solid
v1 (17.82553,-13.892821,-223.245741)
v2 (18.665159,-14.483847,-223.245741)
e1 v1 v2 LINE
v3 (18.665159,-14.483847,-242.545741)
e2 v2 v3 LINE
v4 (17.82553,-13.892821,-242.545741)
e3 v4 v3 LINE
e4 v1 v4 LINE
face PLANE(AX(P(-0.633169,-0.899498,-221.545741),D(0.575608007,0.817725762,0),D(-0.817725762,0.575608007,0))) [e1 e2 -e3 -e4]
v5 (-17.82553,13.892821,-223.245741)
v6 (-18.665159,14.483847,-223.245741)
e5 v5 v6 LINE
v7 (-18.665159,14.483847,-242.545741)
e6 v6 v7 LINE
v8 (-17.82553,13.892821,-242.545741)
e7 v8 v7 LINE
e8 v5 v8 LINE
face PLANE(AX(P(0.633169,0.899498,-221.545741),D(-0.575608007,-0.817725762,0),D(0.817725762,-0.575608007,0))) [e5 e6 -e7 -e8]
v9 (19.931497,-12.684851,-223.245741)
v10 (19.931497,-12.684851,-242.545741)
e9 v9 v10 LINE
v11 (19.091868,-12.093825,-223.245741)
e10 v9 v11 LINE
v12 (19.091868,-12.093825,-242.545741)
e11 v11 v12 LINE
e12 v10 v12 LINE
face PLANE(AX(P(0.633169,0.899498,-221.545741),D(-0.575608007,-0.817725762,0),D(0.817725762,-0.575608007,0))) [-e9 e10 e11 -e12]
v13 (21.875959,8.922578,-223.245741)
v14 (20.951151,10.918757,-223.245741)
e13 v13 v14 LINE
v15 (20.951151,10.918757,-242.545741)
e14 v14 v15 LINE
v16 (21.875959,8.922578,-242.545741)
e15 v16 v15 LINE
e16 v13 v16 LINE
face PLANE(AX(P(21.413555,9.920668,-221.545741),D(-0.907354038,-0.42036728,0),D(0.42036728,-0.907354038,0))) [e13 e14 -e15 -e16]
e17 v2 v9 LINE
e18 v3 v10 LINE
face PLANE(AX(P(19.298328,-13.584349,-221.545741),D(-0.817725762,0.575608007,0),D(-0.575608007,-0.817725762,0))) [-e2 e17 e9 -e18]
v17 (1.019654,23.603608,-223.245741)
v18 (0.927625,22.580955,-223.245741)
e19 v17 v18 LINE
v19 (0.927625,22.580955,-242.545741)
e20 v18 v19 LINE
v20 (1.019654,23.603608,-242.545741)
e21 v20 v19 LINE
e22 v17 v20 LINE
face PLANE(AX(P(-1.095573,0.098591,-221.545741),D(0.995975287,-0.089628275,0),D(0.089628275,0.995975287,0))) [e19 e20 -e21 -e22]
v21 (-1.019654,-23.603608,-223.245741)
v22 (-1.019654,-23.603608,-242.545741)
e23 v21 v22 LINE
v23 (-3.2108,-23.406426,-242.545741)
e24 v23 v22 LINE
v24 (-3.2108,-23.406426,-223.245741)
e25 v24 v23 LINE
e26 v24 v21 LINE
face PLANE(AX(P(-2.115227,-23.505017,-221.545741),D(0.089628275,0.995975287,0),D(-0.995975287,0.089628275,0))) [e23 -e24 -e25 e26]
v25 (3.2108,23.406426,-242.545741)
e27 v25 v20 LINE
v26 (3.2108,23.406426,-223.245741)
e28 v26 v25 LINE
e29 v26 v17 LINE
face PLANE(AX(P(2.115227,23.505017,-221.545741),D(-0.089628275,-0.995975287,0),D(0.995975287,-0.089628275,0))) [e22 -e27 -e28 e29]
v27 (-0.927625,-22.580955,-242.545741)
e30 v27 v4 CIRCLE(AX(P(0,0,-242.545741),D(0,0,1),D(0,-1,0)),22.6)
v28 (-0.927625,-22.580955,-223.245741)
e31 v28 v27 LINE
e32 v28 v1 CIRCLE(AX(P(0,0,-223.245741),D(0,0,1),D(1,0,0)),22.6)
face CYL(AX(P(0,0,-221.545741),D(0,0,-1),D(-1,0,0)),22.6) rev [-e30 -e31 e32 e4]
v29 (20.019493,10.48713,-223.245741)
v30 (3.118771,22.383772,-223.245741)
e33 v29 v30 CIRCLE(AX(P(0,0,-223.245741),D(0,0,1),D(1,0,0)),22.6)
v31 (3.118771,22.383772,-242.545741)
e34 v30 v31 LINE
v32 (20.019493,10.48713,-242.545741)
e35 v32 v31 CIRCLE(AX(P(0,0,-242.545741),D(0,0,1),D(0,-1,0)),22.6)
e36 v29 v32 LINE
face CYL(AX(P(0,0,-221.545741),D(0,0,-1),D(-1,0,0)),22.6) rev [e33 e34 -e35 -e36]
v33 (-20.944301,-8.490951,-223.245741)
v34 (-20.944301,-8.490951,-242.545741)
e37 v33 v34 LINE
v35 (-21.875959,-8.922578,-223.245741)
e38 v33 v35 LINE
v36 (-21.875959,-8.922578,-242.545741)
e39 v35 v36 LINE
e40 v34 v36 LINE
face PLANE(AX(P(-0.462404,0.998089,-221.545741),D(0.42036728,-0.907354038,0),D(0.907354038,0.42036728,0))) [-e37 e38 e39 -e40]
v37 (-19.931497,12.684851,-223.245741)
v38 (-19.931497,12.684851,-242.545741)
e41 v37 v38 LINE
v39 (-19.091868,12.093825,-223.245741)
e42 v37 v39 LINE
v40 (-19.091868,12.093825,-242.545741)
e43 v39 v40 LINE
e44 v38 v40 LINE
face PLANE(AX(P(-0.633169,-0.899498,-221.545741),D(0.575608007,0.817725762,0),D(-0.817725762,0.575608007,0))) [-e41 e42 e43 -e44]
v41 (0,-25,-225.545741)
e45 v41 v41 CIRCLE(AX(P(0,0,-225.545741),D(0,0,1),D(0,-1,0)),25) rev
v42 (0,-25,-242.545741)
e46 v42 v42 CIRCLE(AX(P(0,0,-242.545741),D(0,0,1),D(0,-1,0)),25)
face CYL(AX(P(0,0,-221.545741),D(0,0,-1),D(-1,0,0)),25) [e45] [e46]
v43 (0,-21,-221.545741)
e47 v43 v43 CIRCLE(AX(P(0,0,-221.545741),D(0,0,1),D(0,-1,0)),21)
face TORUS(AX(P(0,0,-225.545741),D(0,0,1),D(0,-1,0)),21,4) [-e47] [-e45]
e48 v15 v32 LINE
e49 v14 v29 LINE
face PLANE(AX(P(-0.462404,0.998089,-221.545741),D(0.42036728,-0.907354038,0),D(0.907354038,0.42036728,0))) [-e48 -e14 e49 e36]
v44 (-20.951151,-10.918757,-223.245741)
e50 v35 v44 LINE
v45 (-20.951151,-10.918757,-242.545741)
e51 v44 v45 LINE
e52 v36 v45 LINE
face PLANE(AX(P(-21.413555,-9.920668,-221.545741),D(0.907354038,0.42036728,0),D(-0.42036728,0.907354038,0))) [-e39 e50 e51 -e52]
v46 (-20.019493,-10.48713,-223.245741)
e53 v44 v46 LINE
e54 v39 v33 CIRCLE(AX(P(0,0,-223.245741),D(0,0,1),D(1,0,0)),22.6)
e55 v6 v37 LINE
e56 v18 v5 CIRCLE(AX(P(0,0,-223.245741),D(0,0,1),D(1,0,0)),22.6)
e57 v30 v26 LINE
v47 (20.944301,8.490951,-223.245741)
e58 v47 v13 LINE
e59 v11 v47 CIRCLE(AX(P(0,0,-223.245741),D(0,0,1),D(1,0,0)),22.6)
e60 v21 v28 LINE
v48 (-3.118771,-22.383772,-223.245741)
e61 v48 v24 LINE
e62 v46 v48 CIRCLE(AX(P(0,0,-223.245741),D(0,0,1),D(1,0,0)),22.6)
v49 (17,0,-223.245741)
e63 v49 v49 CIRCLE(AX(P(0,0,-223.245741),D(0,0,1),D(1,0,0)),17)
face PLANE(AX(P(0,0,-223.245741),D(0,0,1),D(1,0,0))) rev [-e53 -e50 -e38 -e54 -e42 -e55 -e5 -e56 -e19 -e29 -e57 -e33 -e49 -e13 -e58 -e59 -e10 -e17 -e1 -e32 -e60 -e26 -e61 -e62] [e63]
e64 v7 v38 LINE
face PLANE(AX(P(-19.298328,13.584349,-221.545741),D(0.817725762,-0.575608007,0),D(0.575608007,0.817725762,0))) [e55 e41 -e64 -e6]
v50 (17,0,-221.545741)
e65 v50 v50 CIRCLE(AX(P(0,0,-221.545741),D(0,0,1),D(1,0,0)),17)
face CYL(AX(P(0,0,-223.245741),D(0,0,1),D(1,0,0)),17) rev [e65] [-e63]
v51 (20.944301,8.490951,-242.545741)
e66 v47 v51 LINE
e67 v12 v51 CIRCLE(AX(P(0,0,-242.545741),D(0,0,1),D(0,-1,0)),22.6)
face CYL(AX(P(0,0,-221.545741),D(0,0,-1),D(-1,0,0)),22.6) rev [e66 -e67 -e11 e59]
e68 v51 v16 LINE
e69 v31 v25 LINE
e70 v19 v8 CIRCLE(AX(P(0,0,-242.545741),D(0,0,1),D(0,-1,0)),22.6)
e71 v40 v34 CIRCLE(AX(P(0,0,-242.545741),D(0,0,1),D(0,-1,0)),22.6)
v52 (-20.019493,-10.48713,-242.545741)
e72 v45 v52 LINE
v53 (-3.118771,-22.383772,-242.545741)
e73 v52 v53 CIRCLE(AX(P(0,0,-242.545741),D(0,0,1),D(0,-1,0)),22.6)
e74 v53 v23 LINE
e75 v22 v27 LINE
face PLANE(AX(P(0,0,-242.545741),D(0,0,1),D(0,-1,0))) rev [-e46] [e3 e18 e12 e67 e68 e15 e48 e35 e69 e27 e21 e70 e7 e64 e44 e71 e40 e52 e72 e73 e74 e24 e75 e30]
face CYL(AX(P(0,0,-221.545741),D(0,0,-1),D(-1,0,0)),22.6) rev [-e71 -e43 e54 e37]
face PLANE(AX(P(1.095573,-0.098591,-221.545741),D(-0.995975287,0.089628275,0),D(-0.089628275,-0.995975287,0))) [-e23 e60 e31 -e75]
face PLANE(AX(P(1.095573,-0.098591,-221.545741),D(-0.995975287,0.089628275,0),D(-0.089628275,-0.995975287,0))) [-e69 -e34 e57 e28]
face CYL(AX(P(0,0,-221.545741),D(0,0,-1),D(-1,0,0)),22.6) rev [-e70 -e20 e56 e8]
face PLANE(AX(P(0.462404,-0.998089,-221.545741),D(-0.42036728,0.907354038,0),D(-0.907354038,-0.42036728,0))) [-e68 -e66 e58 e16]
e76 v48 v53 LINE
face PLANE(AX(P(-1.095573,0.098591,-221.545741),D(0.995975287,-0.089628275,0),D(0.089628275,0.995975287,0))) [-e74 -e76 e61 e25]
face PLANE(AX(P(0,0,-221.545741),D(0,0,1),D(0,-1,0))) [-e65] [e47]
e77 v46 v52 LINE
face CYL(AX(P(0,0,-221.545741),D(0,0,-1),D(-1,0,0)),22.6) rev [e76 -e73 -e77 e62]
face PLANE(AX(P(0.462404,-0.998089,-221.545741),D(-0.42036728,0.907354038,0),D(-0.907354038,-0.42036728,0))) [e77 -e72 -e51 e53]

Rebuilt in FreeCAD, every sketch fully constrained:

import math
import FreeCAD as App
import Part
import Sketcher


def edges_at(feature, points):
    """Names of the edges that pass closest to the given points."""
    edges = feature.Shape.Edges
    near = lambda p: min(range(len(edges)), key=lambda i: edges[i].distToShape(Part.Vertex(*p))[0])
    return sorted({f"Edge{near(p) + 1}" for p in points})

doc = App.newDocument("Part")
params = doc.addObject("Spreadsheet::Sheet", "Params")
for row, (alias, value) in enumerate([
    ("sketch1_diameter", "50 mm"),
    ("sketch1_radius", "22.6 mm"),
    ("sketch1_length", "2.2 mm"),
    ("pad1_length", "21.000001 mm"),
    ("sketch2_diameter", "50 mm"),
    ("sketch2_diameter2", "34 mm"),
    ("pad2_length", "1.7 mm"),
    ("fillet_radius", "4 mm"),
], start=1):
    params.set(f"A{row}", alias)
    params.set(f"B{row}", "=" + value)
    params.setAlias(f"B{row}", alias)

body = doc.addObject("PartDesign::Body", "Body")

# Sketch on XY plane
sketch1 = doc.addObject("Sketcher::SketchObject", "Sketch")
body.addObject(sketch1)
sketch1.AttachmentSupport = (doc.XY_Plane, [""])
sketch1.MapMode = "FlatFace"
sketch1.AttachmentOffset = App.Placement(App.Vector(0, 0, -242.545742), App.Rotation())
sketch1.addGeometry(Part.Circle(App.Vector(0, 0, 0), App.Vector(0, 0, 1), 25), False)
sketch1.addGeometry(Part.LineSegment(App.Vector(-21, -10.9, 0), App.Vector(-21.9, -8.9, 0)), False)
sketch1.addGeometry(Part.LineSegment(App.Vector(-21.9, -8.9, 0), App.Vector(-20.9, -8.5, 0)), False)
sketch1.addGeometry(Part.ArcOfCircle(Part.Circle(App.Vector(0, 0, 0), App.Vector(0, 0, 1), 22.6), math.radians(148), math.radians(202)), False)
sketch1.addGeometry(Part.LineSegment(App.Vector(-19.1, 12.1, 0), App.Vector(-19.9, 12.7, 0)), False)
sketch1.addGeometry(Part.LineSegment(App.Vector(-19.9, 12.7, 0), App.Vector(-18.7, 14.5, 0)), False)
sketch1.addGeometry(Part.LineSegment(App.Vector(-18.7, 14.5, 0), App.Vector(-17.8, 13.9, 0)), False)
sketch1.addGeometry(Part.ArcOfCircle(Part.Circle(App.Vector(0, 0, 0), App.Vector(0, 0, 1), 22.6), math.radians(88), math.radians(142)), False)
sketch1.addGeometry(Part.LineSegment(App.Vector(0.9, 22.6, 0), App.Vector(1, 23.6, 0)), False)
sketch1.addGeometry(Part.LineSegment(App.Vector(1, 23.6, 0), App.Vector(3.2, 23.4, 0)), False)
sketch1.addGeometry(Part.LineSegment(App.Vector(3.2, 23.4, 0), App.Vector(3.1, 22.4, 0)), False)
sketch1.addGeometry(Part.ArcOfCircle(Part.Circle(App.Vector(0, 0, 0), App.Vector(0, 0, 1), 22.6), math.radians(28), math.radians(82)), False)
sketch1.addGeometry(Part.LineSegment(App.Vector(20, 10.5, 0), App.Vector(21, 10.9, 0)), False)
sketch1.addGeometry(Part.LineSegment(App.Vector(21, 10.9, 0), App.Vector(21.9, 8.9, 0)), False)
sketch1.addGeometry(Part.LineSegment(App.Vector(21.9, 8.9, 0), App.Vector(20.9, 8.5, 0)), False)
sketch1.addGeometry(Part.ArcOfCircle(Part.Circle(App.Vector(0, 0, 0), App.Vector(0, 0, 1), 22.6), math.radians(-32), math.radians(22)), False)
sketch1.addGeometry(Part.LineSegment(App.Vector(19.1, -12.1, 0), App.Vector(19.9, -12.7, 0)), False)
sketch1.addGeometry(Part.LineSegment(App.Vector(19.9, -12.7, 0), App.Vector(18.7, -14.5, 0)), False)
sketch1.addGeometry(Part.LineSegment(App.Vector(18.7, -14.5, 0), App.Vector(17.8, -13.9, 0)), False)
sketch1.addGeometry(Part.ArcOfCircle(Part.Circle(App.Vector(0, 0, 0), App.Vector(0, 0, 1), 22.6), math.radians(-92), math.radians(-38)), False)
sketch1.addGeometry(Part.LineSegment(App.Vector(-0.9, -22.6, 0), App.Vector(-1, -23.6, 0)), False)
sketch1.addGeometry(Part.LineSegment(App.Vector(-1, -23.6, 0), App.Vector(-3.2, -23.4, 0)), False)
sketch1.addGeometry(Part.LineSegment(App.Vector(-3.2, -23.4, 0), App.Vector(-3.1, -22.4, 0)), False)
sketch1.addGeometry(Part.ArcOfCircle(Part.Circle(App.Vector(0, 0, 0), App.Vector(0, 0, 1), 22.6), math.radians(-152), math.radians(-98)), False)
sketch1.addGeometry(Part.LineSegment(App.Vector(-20, -10.5, 0), App.Vector(-21, -10.9, 0)), False)
sketch1.addConstraint(Sketcher.Constraint("Coincident", 1, 2, 2, 1))
sketch1.addConstraint(Sketcher.Constraint("Coincident", 2, 2, 3, 2))
sketch1.addConstraint(Sketcher.Constraint("Coincident", 3, 1, 4, 1))
sketch1.addConstraint(Sketcher.Constraint("Coincident", 4, 2, 5, 1))
sketch1.addConstraint(Sketcher.Constraint("Coincident", 5, 2, 6, 1))
sketch1.addConstraint(Sketcher.Constraint("Coincident", 6, 2, 7, 2))
sketch1.addConstraint(Sketcher.Constraint("Coincident", 7, 1, 8, 1))
sketch1.addConstraint(Sketcher.Constraint("Coincident", 8, 2, 9, 1))
sketch1.addConstraint(Sketcher.Constraint("Coincident", 9, 2, 10, 1))
sketch1.addConstraint(Sketcher.Constraint("Coincident", 10, 2, 11, 2))
sketch1.addConstraint(Sketcher.Constraint("Coincident", 11, 1, 12, 1))
sketch1.addConstraint(Sketcher.Constraint("Coincident", 12, 2, 13, 1))
sketch1.addConstraint(Sketcher.Constraint("Coincident", 13, 2, 14, 1))
sketch1.addConstraint(Sketcher.Constraint("Coincident", 14, 2, 15, 2))
sketch1.addConstraint(Sketcher.Constraint("Coincident", 15, 1, 16, 1))
sketch1.addConstraint(Sketcher.Constraint("Coincident", 16, 2, 17, 1))
sketch1.addConstraint(Sketcher.Constraint("Coincident", 17, 2, 18, 1))
sketch1.addConstraint(Sketcher.Constraint("Coincident", 18, 2, 19, 2))
sketch1.addConstraint(Sketcher.Constraint("Coincident", 19, 1, 20, 1))
sketch1.addConstraint(Sketcher.Constraint("Coincident", 20, 2, 21, 1))
sketch1.addConstraint(Sketcher.Constraint("Coincident", 21, 2, 22, 1))
sketch1.addConstraint(Sketcher.Constraint("Coincident", 22, 2, 23, 2))
sketch1.addConstraint(Sketcher.Constraint("Coincident", 23, 1, 24, 1))
sketch1.addConstraint(Sketcher.Constraint("Coincident", 24, 2, 1, 1))
sketch1.addConstraint(Sketcher.Constraint("Coincident", 0, 3, -1, 1))
sketch1.addConstraint(Sketcher.Constraint("Coincident", 3, 3, -1, 1))
sketch1.addConstraint(Sketcher.Constraint("Coincident", 7, 3, -1, 1))
sketch1.addConstraint(Sketcher.Constraint("Coincident", 11, 3, -1, 1))
sketch1.addConstraint(Sketcher.Constraint("Coincident", 15, 3, -1, 1))
sketch1.addConstraint(Sketcher.Constraint("Coincident", 19, 3, -1, 1))
sketch1.addConstraint(Sketcher.Constraint("Coincident", 23, 3, -1, 1))
sketch1.addConstraint(Sketcher.Constraint("Equal", 3, 7))
sketch1.addConstraint(Sketcher.Constraint("Equal", 7, 11))
sketch1.addConstraint(Sketcher.Constraint("Equal", 11, 15))
sketch1.addConstraint(Sketcher.Constraint("Equal", 15, 19))
sketch1.addConstraint(Sketcher.Constraint("Equal", 19, 23))
sketch1.addConstraint(Sketcher.Constraint("Symmetric", 1, 2, 13, 2, -1, 1))
sketch1.addConstraint(Sketcher.Constraint("Symmetric", 4, 2, 16, 2, -1, 1))
sketch1.addConstraint(Sketcher.Constraint("Symmetric", 5, 2, 17, 2, -1, 1))
sketch1.addConstraint(Sketcher.Constraint("Symmetric", 8, 2, 20, 2, -1, 1))
sketch1.addConstraint(Sketcher.Constraint("Symmetric", 9, 2, 21, 2, -1, 1))
sketch1.addConstraint(Sketcher.Constraint("Symmetric", 12, 2, 24, 2, -1, 1))
sketch1.addConstraint(Sketcher.Constraint("Perpendicular", 1, 2))
sketch1.addConstraint(Sketcher.Constraint("Perpendicular", 4, 5))
sketch1.addConstraint(Sketcher.Constraint("Perpendicular", 5, 6))
sketch1.addConstraint(Sketcher.Constraint("Perpendicular", 8, 9))
sketch1.addConstraint(Sketcher.Constraint("Perpendicular", 9, 10))
sketch1.addConstraint(Sketcher.Constraint("Parallel", 2, 12))
sketch1.addConstraint(Sketcher.Constraint("Perpendicular", 13, 14))
sketch1.addConstraint(Sketcher.Constraint("Parallel", 6, 16))
sketch1.addConstraint(Sketcher.Constraint("Perpendicular", 17, 18))
sketch1.addConstraint(Sketcher.Constraint("Parallel", 10, 20))
sketch1.addConstraint(Sketcher.Constraint("Perpendicular", 21, 22))
sketch1.addConstraint(Sketcher.Constraint("Parallel", 14, 24))
sketch1.addConstraint(Sketcher.Constraint("Equal", 2, 4))
sketch1.addConstraint(Sketcher.Constraint("Equal", 1, 5))
sketch1.addConstraint(Sketcher.Constraint("Equal", 4, 6))
sketch1.addConstraint(Sketcher.Constraint("Equal", 6, 8))
sketch1.addConstraint(Sketcher.Constraint("Equal", 5, 9))
sketch1.addConstraint(Sketcher.Constraint("Equal", 8, 10))
sketch1.addConstraint(Sketcher.Constraint("Equal", 10, 12))
sketch1.addConstraint(Sketcher.Constraint("Diameter", 0, 50.0))
sketch1.addConstraint(Sketcher.Constraint("Radius", 3, 22.6))
sketch1.addConstraint(Sketcher.Constraint("Distance", 1, 2.2))
sketch1.addConstraint(Sketcher.Constraint("DistanceX", 2, 2, -1, 1, 20.944301))
sketch1.addConstraint(Sketcher.Constraint("DistanceX", -1, 1, 9, 2, 3.2108))
sketch1.addConstraint(Sketcher.Constraint("DistanceY", 2, 2, 4, 2, 21.175802))
sketch1.addConstraint(Sketcher.Constraint("DistanceY", 2, 2, 5, 2, 22.974799))
sketch1.setExpression("Constraints[61]", "Params.sketch1_diameter")
sketch1.setExpression("Constraints[62]", "Params.sketch1_radius")
sketch1.setExpression("Constraints[63]", "Params.sketch1_length")
pad1 = doc.addObject("PartDesign::Pad", "Pad")
body.addObject(pad1)
pad1.Profile = sketch1
pad1.setExpression("Length", "Params.pad1_length")

# Sketch on XY plane
sketch2 = doc.addObject("Sketcher::SketchObject", "Sketch001")
body.addObject(sketch2)
sketch2.AttachmentSupport = (doc.XY_Plane, [""])
sketch2.MapMode = "FlatFace"
sketch2.AttachmentOffset = App.Placement(App.Vector(0, 0, -223.245741), App.Rotation())
sketch2.addGeometry(Part.Circle(App.Vector(0, 0, 0), App.Vector(0, 0, 1), 25), False)
sketch2.addGeometry(Part.Circle(App.Vector(0, 0, 0), App.Vector(0, 0, 1), 17), False)
sketch2.addConstraint(Sketcher.Constraint("Coincident", 0, 3, -1, 1))
sketch2.addConstraint(Sketcher.Constraint("Coincident", 1, 3, -1, 1))
sketch2.addConstraint(Sketcher.Constraint("Diameter", 0, 50.0))
sketch2.addConstraint(Sketcher.Constraint("Diameter", 1, 34.0))
sketch2.setExpression("Constraints[2]", "Params.sketch2_diameter")
sketch2.setExpression("Constraints[3]", "Params.sketch2_diameter2")
pad2 = doc.addObject("PartDesign::Pad", "Pad001")
body.addObject(pad2)
pad2.Profile = sketch2
pad2.setExpression("Length", "Params.pad2_length")
doc.recompute()

fillet = doc.addObject("PartDesign::Fillet", "Fillet")
body.addObject(fillet)
fillet.Base = (pad2, edges_at(pad2, [(0, 25, -221.546)]))
fillet.setExpression("Radius", "Params.fillet_radius")

doc.recompute()
